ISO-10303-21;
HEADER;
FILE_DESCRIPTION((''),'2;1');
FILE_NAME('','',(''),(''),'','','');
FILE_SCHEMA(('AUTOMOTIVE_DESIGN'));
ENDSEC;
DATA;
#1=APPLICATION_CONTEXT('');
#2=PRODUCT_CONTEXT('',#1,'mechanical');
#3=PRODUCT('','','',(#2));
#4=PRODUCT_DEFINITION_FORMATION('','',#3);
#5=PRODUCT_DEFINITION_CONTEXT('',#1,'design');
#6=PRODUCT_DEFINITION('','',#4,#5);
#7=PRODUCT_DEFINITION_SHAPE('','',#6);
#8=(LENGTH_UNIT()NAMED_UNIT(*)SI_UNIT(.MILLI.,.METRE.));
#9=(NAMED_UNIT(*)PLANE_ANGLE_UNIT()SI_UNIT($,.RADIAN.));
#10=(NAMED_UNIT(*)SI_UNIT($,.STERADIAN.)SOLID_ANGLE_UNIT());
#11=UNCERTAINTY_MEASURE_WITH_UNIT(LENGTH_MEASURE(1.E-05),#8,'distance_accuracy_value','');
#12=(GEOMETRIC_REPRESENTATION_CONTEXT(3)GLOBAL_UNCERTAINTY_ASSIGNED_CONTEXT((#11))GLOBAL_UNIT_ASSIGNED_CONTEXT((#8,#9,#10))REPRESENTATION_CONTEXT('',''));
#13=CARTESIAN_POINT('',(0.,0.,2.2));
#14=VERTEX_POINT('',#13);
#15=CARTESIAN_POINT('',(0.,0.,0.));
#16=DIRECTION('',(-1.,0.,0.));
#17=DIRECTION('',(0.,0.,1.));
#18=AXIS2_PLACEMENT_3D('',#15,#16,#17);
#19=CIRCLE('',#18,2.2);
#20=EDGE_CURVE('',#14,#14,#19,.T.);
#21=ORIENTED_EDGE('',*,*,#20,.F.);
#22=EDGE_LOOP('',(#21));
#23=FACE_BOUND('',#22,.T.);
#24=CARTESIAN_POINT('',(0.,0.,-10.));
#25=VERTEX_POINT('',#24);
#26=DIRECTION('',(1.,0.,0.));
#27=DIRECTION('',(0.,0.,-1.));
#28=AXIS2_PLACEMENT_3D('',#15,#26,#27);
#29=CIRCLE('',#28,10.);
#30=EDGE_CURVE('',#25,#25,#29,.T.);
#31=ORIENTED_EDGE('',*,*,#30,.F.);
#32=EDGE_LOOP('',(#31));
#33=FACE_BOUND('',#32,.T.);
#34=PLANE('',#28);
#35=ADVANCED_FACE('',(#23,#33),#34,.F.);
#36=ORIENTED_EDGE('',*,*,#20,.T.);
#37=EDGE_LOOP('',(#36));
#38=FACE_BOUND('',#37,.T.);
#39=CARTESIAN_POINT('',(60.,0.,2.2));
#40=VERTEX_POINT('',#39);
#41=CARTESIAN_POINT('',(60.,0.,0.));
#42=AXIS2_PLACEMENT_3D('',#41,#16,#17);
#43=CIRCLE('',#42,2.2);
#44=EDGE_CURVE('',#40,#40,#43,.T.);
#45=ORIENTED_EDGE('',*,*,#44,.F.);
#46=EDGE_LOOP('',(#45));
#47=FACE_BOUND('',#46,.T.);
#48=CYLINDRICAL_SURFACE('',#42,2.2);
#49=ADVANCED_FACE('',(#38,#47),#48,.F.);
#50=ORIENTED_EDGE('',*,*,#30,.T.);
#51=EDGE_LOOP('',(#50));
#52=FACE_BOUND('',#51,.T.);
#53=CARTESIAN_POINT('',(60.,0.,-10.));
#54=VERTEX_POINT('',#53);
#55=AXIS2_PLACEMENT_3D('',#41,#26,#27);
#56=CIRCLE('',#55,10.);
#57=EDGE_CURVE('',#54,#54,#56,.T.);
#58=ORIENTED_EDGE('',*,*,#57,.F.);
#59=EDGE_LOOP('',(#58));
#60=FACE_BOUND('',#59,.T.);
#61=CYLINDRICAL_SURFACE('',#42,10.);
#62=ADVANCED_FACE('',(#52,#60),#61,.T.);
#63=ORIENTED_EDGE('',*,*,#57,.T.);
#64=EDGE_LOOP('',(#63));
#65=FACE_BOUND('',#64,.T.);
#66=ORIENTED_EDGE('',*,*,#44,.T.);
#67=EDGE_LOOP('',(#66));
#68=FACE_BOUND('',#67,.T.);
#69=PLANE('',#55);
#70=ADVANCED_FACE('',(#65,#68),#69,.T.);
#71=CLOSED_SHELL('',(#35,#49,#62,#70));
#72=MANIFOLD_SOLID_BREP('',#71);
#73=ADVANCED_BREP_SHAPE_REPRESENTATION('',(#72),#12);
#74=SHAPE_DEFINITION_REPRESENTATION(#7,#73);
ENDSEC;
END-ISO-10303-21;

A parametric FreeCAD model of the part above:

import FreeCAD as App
import Part
import Sketcher
from FreeCAD import Vector
Q = App.Units.Quantity

doc = App.newDocument("Part")
params = doc.addObject("Spreadsheet::Sheet", "Params")
for row, (alias, value) in enumerate([
    ("sketch1_diameter", "20 mm"),
    ("pad1_length", "60 mm"),
    ("sketch2_diameter", "4.4 mm"),
    ("pocket1_length", "60 mm"),
], start=1):
    params.set(f"A{row}", alias)
    params.set(f"B{row}", "=" + value)
    params.setAlias(f"B{row}", alias)

body = doc.addObject("PartDesign::Body", "Body")

# Sketch on YZ plane
sketch1 = body.newObject("Sketcher::SketchObject", "Sketch")
sketch1.AttachmentSupport = (doc.getObject("YZ_Plane"), [""])
sketch1.MapMode = "FlatFace"
sketch1.addGeometry(Part.Circle(Vector(0, 0, 0), Vector(0, 0, 1), 10), False)
sketch1.addConstraint([
    Sketcher.Constraint("Coincident", 0, 3, -1, 1),
    Sketcher.Constraint("Diameter", 0, Q("20 mm")),
])
sketch1.setExpression("Constraints[1]", "Params.sketch1_diameter")
pad1 = body.newObject("PartDesign::Pad", "Pad")
pad1.Profile = sketch1
pad1.setExpression("Length", "Params.pad1_length")

# Sketch on YZ plane
sketch2 = body.newObject("Sketcher::SketchObject", "Sketch001")
sketch2.AttachmentSupport = (doc.getObject("YZ_Plane"), [""])
sketch2.MapMode = "FlatFace"
sketch2.addGeometry(Part.Circle(Vector(0, 0, 0), Vector(0, 0, 1), 2.2), False)
sketch2.addConstraint([
    Sketcher.Constraint("Coincident", 0, 3, -1, 1),
    Sketcher.Constraint("Diameter", 0, Q("4.4 mm")),
])
sketch2.setExpression("Constraints[1]", "Params.sketch2_diameter")
pocket1 = body.newObject("PartDesign::Pocket", "Pocket")
pocket1.Profile = sketch2
pocket1.setExpression("Length", "Params.pocket1_length")
pocket1.Reversed = True

doc.recompute()
